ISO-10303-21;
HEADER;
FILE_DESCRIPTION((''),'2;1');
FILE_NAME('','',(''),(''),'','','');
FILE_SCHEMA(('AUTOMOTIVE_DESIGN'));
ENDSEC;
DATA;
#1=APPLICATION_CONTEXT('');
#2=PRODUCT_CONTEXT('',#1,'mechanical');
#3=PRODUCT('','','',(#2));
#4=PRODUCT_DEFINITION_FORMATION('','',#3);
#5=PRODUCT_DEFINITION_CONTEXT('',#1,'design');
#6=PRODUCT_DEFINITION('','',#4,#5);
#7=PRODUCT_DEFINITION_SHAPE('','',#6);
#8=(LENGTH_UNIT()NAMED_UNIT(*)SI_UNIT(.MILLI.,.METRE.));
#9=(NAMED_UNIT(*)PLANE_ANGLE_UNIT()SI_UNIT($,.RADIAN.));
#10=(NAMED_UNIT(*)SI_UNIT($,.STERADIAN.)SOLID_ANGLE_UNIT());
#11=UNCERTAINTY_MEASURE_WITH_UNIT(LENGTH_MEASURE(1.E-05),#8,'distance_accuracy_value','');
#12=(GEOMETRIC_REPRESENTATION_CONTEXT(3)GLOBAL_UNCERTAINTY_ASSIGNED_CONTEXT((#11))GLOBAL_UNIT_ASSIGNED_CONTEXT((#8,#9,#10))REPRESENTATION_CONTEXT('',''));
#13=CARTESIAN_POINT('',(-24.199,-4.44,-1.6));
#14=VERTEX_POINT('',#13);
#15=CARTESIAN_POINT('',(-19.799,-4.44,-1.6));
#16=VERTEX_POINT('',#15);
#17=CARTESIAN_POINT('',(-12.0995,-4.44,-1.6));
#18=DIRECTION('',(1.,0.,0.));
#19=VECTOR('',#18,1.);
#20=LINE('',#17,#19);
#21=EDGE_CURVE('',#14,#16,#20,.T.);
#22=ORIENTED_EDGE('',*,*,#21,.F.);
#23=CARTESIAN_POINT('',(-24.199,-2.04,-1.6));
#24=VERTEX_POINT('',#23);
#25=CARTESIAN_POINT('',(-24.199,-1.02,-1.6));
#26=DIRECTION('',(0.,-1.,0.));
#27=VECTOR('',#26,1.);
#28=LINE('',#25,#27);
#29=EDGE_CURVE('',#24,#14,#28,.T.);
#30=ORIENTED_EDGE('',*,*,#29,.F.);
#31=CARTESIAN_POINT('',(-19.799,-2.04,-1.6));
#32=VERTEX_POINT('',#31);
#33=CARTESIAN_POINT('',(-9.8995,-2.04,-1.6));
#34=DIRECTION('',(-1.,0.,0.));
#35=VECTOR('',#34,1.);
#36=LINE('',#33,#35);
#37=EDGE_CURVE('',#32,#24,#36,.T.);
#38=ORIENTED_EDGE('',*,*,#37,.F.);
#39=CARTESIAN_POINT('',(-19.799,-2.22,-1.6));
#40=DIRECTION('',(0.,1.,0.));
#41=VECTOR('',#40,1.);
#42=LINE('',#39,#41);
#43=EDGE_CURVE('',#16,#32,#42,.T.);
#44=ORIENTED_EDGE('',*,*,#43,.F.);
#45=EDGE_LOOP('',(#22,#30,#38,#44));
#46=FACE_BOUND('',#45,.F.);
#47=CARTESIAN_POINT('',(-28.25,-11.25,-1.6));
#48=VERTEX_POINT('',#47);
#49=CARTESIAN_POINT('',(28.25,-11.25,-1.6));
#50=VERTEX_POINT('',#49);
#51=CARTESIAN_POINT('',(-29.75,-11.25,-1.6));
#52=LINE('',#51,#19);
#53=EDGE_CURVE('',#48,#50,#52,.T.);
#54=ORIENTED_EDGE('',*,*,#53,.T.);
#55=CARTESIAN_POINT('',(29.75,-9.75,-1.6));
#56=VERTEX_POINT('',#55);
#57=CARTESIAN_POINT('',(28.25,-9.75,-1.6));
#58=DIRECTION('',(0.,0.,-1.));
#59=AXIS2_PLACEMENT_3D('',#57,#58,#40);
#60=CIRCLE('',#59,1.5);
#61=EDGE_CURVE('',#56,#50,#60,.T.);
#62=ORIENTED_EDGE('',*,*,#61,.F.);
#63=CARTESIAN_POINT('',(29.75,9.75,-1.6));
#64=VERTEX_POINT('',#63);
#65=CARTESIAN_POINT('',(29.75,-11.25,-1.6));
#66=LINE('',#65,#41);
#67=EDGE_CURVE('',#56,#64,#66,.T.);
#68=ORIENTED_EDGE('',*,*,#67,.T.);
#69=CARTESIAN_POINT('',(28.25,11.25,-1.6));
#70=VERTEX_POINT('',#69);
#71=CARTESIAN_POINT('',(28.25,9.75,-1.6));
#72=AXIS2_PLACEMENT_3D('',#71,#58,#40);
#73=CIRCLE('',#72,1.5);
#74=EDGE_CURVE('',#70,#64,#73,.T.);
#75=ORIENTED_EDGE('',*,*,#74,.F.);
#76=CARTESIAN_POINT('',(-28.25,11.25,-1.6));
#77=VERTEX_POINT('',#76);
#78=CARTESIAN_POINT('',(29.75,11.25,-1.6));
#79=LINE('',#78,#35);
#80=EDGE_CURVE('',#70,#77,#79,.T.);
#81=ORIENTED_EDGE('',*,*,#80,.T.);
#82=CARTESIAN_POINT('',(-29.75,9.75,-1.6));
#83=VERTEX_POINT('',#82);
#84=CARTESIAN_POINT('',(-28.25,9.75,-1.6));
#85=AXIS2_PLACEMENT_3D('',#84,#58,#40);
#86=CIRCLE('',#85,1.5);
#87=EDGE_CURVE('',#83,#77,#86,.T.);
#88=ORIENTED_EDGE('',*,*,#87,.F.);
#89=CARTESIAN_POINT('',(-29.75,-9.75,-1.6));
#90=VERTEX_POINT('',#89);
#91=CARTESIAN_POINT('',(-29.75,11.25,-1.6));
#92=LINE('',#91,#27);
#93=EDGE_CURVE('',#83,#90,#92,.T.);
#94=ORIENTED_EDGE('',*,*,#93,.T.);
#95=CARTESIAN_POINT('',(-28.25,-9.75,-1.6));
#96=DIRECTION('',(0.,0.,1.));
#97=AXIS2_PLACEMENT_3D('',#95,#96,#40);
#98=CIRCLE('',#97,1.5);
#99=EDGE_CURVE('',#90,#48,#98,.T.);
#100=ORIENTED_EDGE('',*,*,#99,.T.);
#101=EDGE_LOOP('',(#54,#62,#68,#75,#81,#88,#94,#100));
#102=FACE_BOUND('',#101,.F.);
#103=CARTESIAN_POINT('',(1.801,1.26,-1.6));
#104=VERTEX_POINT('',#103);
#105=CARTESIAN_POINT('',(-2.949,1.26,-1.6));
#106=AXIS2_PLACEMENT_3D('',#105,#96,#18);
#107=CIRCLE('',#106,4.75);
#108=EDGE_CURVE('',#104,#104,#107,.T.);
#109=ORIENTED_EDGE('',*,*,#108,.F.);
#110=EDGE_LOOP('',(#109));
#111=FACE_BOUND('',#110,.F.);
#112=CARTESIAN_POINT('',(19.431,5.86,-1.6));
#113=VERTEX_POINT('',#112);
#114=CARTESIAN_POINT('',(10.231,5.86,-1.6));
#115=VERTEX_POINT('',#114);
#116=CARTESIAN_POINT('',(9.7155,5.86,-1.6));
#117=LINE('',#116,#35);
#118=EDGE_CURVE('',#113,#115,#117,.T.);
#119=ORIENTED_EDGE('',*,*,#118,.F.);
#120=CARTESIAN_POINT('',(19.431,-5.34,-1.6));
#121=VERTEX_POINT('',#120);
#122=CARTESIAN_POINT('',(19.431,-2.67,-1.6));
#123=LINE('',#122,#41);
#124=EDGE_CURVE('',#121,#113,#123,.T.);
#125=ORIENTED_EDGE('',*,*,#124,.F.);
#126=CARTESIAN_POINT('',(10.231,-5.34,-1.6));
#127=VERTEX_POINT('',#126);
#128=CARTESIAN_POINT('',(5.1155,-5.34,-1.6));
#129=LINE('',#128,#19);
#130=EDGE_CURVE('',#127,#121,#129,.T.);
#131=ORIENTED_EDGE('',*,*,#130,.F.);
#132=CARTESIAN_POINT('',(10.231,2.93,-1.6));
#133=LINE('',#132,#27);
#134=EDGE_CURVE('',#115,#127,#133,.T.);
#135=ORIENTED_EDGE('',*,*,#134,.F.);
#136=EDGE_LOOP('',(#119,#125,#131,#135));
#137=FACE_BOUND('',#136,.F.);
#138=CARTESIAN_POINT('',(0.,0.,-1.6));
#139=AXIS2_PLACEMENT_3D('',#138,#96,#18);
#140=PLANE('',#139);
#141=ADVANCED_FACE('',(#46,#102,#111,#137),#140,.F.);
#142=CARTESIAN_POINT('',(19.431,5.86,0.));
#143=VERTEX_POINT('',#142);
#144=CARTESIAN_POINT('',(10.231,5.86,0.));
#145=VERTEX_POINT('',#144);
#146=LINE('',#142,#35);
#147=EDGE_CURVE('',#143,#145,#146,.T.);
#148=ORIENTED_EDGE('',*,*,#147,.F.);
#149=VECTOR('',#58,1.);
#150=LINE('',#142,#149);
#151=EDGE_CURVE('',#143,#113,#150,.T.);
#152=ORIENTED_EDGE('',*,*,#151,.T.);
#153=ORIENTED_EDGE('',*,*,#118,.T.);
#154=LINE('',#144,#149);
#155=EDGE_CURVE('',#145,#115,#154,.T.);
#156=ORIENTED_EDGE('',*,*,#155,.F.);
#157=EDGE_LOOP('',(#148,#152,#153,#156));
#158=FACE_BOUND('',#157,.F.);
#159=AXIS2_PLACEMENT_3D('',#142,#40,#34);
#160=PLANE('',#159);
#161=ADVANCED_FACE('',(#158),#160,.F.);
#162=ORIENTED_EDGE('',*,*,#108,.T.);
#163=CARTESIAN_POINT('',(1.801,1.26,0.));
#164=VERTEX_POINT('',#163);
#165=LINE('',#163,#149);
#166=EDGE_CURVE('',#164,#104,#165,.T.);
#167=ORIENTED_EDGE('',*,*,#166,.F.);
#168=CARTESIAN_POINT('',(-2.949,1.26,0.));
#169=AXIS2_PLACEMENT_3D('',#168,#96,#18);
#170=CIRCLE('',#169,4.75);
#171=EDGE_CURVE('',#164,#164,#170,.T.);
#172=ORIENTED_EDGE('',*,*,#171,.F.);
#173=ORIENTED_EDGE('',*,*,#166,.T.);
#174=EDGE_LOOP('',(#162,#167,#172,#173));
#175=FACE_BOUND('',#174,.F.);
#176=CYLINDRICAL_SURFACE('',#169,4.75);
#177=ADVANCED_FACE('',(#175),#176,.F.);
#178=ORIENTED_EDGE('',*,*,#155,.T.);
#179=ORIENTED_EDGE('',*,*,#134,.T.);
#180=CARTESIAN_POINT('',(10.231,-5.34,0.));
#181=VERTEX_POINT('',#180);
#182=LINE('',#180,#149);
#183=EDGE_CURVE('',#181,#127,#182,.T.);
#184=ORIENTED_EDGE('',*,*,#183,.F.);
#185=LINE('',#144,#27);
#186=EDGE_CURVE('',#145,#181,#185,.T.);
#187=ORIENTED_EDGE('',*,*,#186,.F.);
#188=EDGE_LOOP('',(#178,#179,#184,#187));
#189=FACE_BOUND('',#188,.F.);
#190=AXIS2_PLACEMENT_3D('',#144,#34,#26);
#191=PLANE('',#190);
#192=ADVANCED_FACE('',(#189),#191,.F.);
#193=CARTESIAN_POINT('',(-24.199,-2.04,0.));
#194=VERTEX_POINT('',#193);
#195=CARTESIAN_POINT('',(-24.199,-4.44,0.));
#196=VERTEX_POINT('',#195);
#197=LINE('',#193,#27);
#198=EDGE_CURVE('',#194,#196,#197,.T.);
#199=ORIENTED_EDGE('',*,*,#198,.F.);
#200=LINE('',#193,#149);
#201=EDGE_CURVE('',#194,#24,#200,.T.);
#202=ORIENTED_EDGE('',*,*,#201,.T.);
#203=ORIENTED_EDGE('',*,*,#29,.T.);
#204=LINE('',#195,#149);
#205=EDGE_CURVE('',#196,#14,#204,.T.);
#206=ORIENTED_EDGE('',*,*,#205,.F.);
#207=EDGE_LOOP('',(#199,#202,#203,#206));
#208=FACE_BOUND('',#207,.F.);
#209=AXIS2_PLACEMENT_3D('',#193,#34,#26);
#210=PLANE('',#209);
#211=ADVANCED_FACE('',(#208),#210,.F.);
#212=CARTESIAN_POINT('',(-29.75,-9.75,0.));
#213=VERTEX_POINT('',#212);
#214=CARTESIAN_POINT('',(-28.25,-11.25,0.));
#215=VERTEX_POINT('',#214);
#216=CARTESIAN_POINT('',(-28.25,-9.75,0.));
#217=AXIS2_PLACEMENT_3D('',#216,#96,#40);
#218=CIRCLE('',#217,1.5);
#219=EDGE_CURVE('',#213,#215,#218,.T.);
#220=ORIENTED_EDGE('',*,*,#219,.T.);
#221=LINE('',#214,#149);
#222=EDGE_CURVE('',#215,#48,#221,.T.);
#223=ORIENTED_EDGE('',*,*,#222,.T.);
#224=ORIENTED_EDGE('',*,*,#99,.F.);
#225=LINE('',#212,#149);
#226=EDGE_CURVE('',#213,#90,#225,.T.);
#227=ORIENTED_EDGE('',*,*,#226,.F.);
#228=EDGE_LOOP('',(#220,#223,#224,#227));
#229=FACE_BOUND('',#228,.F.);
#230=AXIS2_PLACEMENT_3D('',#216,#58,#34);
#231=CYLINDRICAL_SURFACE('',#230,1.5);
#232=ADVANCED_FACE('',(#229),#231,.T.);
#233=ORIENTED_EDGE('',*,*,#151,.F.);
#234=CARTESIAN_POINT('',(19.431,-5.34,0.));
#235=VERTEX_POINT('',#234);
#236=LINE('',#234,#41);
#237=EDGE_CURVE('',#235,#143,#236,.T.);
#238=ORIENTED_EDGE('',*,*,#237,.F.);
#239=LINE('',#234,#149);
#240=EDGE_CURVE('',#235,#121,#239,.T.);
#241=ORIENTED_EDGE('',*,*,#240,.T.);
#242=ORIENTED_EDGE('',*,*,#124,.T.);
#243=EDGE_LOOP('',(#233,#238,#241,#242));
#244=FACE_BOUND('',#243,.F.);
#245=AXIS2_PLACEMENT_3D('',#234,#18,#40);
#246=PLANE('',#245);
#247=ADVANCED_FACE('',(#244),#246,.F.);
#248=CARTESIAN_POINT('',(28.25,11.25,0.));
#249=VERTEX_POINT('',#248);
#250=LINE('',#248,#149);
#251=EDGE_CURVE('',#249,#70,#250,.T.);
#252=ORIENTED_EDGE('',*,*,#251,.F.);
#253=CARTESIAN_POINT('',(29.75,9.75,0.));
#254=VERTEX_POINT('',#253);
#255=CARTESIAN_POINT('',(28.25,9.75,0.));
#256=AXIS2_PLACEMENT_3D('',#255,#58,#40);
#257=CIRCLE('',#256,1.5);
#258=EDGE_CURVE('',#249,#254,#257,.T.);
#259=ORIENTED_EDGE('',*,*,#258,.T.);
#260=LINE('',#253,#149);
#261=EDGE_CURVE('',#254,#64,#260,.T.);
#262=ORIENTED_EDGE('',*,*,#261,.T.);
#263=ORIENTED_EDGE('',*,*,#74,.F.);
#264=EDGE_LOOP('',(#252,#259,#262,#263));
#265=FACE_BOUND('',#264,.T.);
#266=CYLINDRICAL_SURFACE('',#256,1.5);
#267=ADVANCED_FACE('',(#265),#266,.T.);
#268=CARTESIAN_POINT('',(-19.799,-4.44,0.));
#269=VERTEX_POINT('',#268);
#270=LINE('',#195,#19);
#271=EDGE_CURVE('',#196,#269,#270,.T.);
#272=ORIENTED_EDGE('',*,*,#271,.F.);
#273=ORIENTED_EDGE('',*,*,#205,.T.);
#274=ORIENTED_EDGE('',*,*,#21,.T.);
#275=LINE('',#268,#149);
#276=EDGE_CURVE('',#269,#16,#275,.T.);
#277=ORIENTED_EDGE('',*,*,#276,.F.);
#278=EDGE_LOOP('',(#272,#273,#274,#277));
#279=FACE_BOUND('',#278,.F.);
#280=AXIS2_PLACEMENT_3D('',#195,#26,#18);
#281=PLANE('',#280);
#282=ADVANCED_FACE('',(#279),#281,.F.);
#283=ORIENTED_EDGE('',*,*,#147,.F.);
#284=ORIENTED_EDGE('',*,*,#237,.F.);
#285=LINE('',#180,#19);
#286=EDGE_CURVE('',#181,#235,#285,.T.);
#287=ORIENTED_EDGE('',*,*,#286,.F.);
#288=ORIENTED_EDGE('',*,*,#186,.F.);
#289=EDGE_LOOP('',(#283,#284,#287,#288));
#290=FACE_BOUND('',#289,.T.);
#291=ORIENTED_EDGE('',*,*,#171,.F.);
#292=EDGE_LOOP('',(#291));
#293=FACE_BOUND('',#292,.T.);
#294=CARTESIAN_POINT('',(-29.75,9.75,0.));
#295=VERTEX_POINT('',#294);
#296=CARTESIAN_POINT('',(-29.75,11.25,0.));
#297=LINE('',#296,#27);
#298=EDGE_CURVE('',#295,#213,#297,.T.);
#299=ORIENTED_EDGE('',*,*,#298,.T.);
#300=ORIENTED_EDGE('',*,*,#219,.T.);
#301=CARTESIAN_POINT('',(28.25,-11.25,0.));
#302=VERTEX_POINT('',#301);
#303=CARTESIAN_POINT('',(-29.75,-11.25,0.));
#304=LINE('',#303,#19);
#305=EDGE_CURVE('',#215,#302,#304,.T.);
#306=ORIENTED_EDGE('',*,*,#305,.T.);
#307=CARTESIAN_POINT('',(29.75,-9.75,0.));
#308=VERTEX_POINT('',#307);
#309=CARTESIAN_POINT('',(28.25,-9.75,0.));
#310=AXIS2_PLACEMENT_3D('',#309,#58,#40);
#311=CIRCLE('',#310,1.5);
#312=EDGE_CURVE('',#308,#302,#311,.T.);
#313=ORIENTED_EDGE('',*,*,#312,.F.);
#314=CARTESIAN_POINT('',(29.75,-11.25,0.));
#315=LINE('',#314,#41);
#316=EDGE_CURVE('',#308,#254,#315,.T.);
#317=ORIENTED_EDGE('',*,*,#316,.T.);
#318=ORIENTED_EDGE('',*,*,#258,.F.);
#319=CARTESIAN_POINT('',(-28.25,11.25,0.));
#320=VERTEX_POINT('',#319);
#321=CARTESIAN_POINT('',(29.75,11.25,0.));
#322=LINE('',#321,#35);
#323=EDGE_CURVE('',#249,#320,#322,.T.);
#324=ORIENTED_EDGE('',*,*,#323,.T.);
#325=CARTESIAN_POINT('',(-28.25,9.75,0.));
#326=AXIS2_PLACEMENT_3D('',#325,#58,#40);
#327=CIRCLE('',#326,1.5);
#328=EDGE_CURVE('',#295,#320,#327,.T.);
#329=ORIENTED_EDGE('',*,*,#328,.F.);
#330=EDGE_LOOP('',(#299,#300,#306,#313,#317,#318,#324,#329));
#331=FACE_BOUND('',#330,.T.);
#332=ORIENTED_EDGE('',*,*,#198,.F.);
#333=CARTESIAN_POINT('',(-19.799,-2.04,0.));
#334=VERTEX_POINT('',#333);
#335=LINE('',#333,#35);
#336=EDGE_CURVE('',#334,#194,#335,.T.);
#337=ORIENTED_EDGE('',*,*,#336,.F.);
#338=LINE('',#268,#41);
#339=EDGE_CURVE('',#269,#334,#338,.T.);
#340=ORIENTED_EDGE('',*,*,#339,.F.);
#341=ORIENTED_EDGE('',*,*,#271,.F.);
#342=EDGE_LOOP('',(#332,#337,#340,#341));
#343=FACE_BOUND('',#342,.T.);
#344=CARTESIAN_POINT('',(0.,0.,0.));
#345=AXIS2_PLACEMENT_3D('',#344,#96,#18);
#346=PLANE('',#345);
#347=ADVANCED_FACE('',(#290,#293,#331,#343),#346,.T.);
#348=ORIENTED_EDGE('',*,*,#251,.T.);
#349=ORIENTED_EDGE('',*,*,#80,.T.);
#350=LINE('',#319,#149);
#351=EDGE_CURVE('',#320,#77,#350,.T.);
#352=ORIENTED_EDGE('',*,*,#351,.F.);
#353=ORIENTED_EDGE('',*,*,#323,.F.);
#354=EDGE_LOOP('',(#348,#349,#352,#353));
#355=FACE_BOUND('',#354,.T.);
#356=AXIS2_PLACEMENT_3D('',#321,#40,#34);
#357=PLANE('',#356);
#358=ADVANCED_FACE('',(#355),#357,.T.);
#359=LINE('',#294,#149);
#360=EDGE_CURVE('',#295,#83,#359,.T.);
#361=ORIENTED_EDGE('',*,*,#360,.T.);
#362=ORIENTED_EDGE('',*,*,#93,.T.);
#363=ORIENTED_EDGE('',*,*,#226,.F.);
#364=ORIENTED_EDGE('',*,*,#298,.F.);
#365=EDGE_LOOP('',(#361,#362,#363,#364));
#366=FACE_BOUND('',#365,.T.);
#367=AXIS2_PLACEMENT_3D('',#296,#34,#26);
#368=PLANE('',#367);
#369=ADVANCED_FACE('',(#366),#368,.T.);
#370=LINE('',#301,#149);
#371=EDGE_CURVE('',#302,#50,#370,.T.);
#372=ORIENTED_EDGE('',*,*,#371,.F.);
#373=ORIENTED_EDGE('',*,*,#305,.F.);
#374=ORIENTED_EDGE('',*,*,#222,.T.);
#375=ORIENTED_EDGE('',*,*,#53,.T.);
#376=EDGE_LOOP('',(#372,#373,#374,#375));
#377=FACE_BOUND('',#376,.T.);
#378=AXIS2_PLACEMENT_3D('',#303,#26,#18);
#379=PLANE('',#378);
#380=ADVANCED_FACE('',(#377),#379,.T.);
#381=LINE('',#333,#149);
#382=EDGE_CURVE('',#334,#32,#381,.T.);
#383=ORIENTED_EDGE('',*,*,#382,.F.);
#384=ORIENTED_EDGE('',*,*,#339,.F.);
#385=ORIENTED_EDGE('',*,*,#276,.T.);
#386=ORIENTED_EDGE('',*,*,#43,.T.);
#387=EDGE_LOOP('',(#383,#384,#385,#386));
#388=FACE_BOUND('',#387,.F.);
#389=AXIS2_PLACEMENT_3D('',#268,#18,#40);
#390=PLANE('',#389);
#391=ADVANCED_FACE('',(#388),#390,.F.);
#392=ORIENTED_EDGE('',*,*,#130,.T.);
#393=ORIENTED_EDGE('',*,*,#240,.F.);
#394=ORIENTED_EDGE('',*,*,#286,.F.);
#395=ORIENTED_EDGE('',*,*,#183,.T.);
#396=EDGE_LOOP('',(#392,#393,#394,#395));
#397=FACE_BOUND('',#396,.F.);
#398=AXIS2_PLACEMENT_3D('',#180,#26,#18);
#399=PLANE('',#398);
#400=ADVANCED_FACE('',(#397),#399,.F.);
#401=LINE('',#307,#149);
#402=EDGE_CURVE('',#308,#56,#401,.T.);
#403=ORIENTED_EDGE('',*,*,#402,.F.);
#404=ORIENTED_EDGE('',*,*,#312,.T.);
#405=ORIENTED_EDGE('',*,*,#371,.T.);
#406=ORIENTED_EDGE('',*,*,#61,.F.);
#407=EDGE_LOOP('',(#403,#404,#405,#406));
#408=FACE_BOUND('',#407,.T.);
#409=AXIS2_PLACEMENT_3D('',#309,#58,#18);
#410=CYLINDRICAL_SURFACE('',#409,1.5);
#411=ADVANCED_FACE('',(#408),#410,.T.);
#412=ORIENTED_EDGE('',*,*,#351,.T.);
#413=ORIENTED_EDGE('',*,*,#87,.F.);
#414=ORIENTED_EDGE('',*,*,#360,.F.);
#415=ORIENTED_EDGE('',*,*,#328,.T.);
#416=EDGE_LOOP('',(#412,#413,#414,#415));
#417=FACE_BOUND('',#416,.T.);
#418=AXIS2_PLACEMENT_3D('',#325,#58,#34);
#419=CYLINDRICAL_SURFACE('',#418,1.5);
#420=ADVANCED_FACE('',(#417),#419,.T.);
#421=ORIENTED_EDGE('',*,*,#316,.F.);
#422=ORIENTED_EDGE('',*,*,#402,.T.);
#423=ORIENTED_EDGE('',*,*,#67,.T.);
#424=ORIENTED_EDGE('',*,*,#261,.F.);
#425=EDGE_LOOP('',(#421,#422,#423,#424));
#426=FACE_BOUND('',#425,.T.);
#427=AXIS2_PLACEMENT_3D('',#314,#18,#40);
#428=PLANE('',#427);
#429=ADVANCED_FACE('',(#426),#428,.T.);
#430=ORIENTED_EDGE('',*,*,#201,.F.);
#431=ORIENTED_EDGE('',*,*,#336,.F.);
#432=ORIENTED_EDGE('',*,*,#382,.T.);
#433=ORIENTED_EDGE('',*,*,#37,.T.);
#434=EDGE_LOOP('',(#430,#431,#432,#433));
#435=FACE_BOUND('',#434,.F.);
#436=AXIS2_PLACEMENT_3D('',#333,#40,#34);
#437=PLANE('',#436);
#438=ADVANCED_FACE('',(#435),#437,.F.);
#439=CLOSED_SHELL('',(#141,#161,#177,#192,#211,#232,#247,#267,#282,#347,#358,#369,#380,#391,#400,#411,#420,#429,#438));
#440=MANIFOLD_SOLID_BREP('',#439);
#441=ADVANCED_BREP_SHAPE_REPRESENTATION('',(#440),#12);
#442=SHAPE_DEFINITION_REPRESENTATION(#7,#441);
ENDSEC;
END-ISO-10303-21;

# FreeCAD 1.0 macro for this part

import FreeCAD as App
import Part
import Sketcher
from FreeCAD import Vector


def edges_at(feature, points):
    """Names of the edges that pass closest to the given points."""
    edges = feature.Shape.Edges
    near = lambda p: min(range(len(edges)), key=lambda i: edges[i].distToShape(Part.Vertex(*p))[0])
    return sorted({f"Edge{near(p) + 1}" for p in points})


def add_polygon(sketch, points):
    """Adds a closed chain of lines whose ends are joined by coincident constraints."""
    first, n = sketch.GeometryCount, len(points)
    for a, b in zip(points, points[1:] + points[:1]):
        sketch.addGeometry(Part.LineSegment(App.Vector(*a, 0), App.Vector(*b, 0)), False)
    for i in range(n):
        sketch.addConstraint(Sketcher.Constraint("Coincident", first + i, 2, first + (i + 1) % n, 1))

doc = App.newDocument("Part")
params = doc.addObject("Spreadsheet::Sheet", "Params")
for row, (alias, value) in enumerate([
    ("sketch1_width", "59.5 mm"),
    ("sketch1_height", "22.5 mm"),
    ("pad1_length", "1.6 mm"),
    ("fillet_radius", "1.5 mm"),
    ("sketch2_diameter", "9.5 mm"),
    ("sketch2_width", "4.4 mm"),
    ("sketch2_height", "2.4 mm"),
    ("sketch3_width", "9.2 mm"),
    ("sketch3_height", "11.2 mm"),
], start=1):
    params.set(f"A{row}", alias)
    params.set(f"B{row}", "=" + value)
    params.setAlias(f"B{row}", alias)

body = doc.addObject("PartDesign::Body", "Body")

# Sketch on XY plane
sketch1 = body.newObject("Sketcher::SketchObject", "Sketch")
sketch1.AttachmentSupport = (doc.getObject("XY_Plane"), [""])
sketch1.MapMode = "FlatFace"
add_polygon(sketch1, [(-29.75, 11.25), (-29.75, -11.25), (29.75, -11.25), (29.75, 11.25)])  # lines 0-3
sketch1.addConstraint([
    Sketcher.Constraint("Vertical", 0),
    Sketcher.Constraint("Horizontal", 1),
    Sketcher.Constraint("Vertical", 2),
    Sketcher.Constraint("Horizontal", 3),
    Sketcher.Constraint("Symmetric", 0, 2, 2, 2, -1, 1),
    Sketcher.Constraint("DistanceX", 1, 1, 1, 2, 59.5),
    Sketcher.Constraint("DistanceY", 0, 2, 0, 1, 22.5),
])
sketch1.setExpression("Constraints[9]", "Params.sketch1_width")
sketch1.setExpression("Constraints[10]", "Params.sketch1_height")
pad1 = body.newObject("PartDesign::Pad", "Pad")
pad1.Profile = sketch1
pad1.setExpression("Length", "Params.pad1_length")
pad1.Reversed = True
doc.recompute()

fillet = body.newObject("PartDesign::Fillet", "Fillet")
fillet.Base = (pad1, edges_at(pad1, [
    (29.75, 11.25, -0.8),
    (29.75, -11.25, -0.8),
    (-29.75, 11.25, -0.8),
    (-29.75, -11.25, -0.8),
]))
fillet.setExpression("Radius", "Params.fillet_radius")

# Sketch on XY plane
sketch2 = body.newObject("Sketcher::SketchObject", "Sketch001")
sketch2.AttachmentSupport = (doc.getObject("XY_Plane"), [""])
sketch2.MapMode = "FlatFace"
sketch2.addGeometry(Part.Circle(Vector(-2.949, 1.26, 0), Vector(0, 0, 1), 4.75), False)  # 0
add_polygon(sketch2, [(-24.199, -2.04), (-24.199, -4.44), (-19.799, -4.44), (-19.799, -2.04)])  # lines 1-4
sketch2.addConstraint([
    Sketcher.Constraint("Vertical", 1),
    Sketcher.Constraint("Horizontal", 2),
    Sketcher.Constraint("Vertical", 3),
    Sketcher.Constraint("Horizontal", 4),
    Sketcher.Constraint("Diameter", 0, 9.5),
    Sketcher.Constraint("DistanceX", 2, 1, 2, 2, 4.4),
    Sketcher.Constraint("DistanceY", 1, 2, 1, 1, 2.4),
    Sketcher.Constraint("DistanceY", 1, 2, 0, 3, 5.7),
    Sketcher.Constraint("DistanceY", -1, 1, 0, 3, 1.26),
    Sketcher.Constraint("DistanceX", 1, 2, 0, 3, 21.25),
    Sketcher.Constraint("DistanceX", 0, 3, -1, 1, 2.949),
])
sketch2.setExpression("Constraints[8]", "Params.sketch2_diameter")
sketch2.setExpression("Constraints[9]", "Params.sketch2_width")
sketch2.setExpression("Constraints[10]", "Params.sketch2_height")
pocket1 = body.newObject("PartDesign::Pocket", "Pocket")
pocket1.Profile = sketch2
pocket1.Type = "ThroughAll"

# Sketch on XY plane
sketch3 = body.newObject("Sketcher::SketchObject", "Sketch002")
sketch3.AttachmentSupport = (doc.getObject("XY_Plane"), [""])
sketch3.MapMode = "FlatFace"
add_polygon(sketch3, [(10.231, 5.86), (10.231, -5.34), (19.431, -5.34), (19.431, 5.86)])  # lines 0-3
sketch3.addConstraint([
    Sketcher.Constraint("Vertical", 0),
    Sketcher.Constraint("Horizontal", 1),
    Sketcher.Constraint("Vertical", 2),
    Sketcher.Constraint("Horizontal", 3),
    Sketcher.Constraint("DistanceX", 1, 1, 1, 2, 9.2),
    Sketcher.Constraint("DistanceY", 0, 2, 0, 1, 11.2),
    Sketcher.Constraint("DistanceY", 0, 2, -1, 1, 5.34),
    Sketcher.Constraint("DistanceX", -1, 1, 0, 2, 10.231),
])
sketch3.setExpression("Constraints[8]", "Params.sketch3_width")
sketch3.setExpression("Constraints[9]", "Params.sketch3_height")
pocket2 = body.newObject("PartDesign::Pocket", "Pocket001")
pocket2.Profile = sketch3
pocket2.Type = "ThroughAll"

doc.recompute()
